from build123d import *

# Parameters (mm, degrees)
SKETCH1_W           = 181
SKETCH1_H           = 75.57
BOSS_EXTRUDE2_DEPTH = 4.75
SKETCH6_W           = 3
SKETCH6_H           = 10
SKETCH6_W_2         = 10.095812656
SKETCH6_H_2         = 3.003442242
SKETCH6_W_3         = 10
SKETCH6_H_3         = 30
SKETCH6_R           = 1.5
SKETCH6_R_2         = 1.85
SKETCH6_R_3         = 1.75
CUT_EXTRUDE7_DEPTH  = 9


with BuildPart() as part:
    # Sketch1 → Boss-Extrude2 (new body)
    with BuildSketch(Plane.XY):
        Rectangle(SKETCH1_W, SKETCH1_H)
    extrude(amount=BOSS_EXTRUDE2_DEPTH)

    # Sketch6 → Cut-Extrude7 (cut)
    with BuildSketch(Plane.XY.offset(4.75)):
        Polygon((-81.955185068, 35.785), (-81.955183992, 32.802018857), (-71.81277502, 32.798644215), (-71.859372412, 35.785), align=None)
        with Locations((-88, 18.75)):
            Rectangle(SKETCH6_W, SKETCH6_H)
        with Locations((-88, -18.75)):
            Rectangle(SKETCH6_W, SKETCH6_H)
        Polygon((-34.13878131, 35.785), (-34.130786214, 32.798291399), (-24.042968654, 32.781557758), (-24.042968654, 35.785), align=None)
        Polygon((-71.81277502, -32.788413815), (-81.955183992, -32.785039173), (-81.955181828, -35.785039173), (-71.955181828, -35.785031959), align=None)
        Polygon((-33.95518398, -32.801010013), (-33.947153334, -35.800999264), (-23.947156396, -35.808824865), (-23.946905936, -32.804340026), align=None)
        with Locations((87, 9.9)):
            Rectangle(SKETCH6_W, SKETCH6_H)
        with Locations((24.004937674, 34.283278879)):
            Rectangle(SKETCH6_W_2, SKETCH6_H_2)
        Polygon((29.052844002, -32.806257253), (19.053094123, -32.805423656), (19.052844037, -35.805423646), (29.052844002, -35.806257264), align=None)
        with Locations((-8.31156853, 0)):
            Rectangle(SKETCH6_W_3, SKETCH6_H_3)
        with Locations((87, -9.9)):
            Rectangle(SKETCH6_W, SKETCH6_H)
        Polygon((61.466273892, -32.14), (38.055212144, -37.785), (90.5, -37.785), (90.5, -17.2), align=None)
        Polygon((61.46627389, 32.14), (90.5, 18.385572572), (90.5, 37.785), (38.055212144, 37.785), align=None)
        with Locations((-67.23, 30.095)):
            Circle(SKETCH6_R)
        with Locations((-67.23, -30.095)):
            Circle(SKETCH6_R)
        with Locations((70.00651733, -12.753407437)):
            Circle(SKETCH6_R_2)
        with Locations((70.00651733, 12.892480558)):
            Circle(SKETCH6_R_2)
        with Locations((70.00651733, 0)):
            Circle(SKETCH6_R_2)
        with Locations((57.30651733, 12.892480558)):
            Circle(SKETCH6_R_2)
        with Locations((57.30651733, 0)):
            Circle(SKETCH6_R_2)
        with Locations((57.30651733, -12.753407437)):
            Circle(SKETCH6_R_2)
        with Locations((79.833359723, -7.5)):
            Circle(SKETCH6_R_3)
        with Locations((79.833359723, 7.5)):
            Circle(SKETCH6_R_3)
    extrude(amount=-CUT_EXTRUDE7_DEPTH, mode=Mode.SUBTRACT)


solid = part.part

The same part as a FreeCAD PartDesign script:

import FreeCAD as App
import Part
import Sketcher
from FreeCAD import Vector

doc = App.newDocument("Part")
body = doc.addObject("PartDesign::Body", "Body")

# Sketch on XY plane
sketch1 = doc.addObject("Sketcher::SketchObject", "Sketch")
body.addObject(sketch1)
sketch1.AttachmentSupport = (doc.XY_Plane, [""])
sketch1.MapMode = "FlatFace"
sketch1.addGeometry([
    Part.LineSegment(Vector(-90, 38, 0), Vector(-90, -38, 0)),
    Part.LineSegment(Vector(-90, -38, 0), Vector(90, -38, 0)),
    Part.LineSegment(Vector(90, -38, 0), Vector(90, 38, 0)),
    Part.LineSegment(Vector(90, 38, 0), Vector(-90, 38, 0)),
], False)
sketch1.addConstraint([
    Sketcher.Constraint("Coincident", 0, 2, 1, 1),
    Sketcher.Constraint("Coincident", 1, 2, 2, 1),
    Sketcher.Constraint("Coincident", 2, 2, 3, 1),
    Sketcher.Constraint("Coincident", 3, 2, 0, 1),
    Sketcher.Constraint("Vertical", 0),
    Sketcher.Constraint("Horizontal", 1),
    Sketcher.Constraint("Vertical", 2),
    Sketcher.Constraint("Horizontal", 3),
    Sketcher.Constraint("Symmetric", 0, 2, 2, 2, -1, 1),
    Sketcher.Constraint("DistanceX", 1, 1, 1, 2, 181.0),
    Sketcher.Constraint("DistanceY", 0, 2, 0, 1, 75.57),
])
pad1 = doc.addObject("PartDesign::Pad", "Pad")
body.addObject(pad1)
pad1.Profile = sketch1
pad1.Length = 4.75

# Sketch on XY plane
sketch2 = doc.addObject("Sketcher::SketchObject", "Sketch001")
body.addObject(sketch2)
sketch2.AttachmentSupport = (doc.XY_Plane, [""])
sketch2.MapMode = "FlatFace"
sketch2.AttachmentOffset = App.Placement(Vector(0, 0, 4.75), App.Rotation())
sketch2.addGeometry([
    Part.LineSegment(Vector(-82, 35.8, 0), Vector(-82, 32.8, 0)),  # 0
    Part.LineSegment(Vector(-82, 32.8, 0), Vector(-71.8, 32.8, 0)),  # 1
    Part.LineSegment(Vector(-71.8, 32.8, 0), Vector(-71.9, 35.8, 0)),  # 2
    Part.LineSegment(Vector(-71.9, 35.8, 0), Vector(-82, 35.8, 0)),  # 3
    Part.LineSegment(Vector(-89.5, 23.8, 0), Vector(-89.5, 13.8, 0)),  # 4
    Part.LineSegment(Vector(-89.5, 13.8, 0), Vector(-86.5, 13.8, 0)),  # 5
    Part.LineSegment(Vector(-86.5, 13.8, 0), Vector(-86.5, 23.8, 0)),  # 6
    Part.LineSegment(Vector(-86.5, 23.8, 0), Vector(-89.5, 23.8, 0)),  # 7
    Part.LineSegment(Vector(-89.5, -13.8, 0), Vector(-89.5, -23.8, 0)),  # 8
    Part.LineSegment(Vector(-89.5, -23.8, 0), Vector(-86.5, -23.8, 0)),  # 9
    Part.LineSegment(Vector(-86.5, -23.8, 0), Vector(-86.5, -13.8, 0)),  # 10
    Part.LineSegment(Vector(-86.5, -13.8, 0), Vector(-89.5, -13.8, 0)),  # 11
    Part.LineSegment(Vector(-34.1, 35.8, 0), Vector(-34.1, 32.8, 0)),  # 12
    Part.LineSegment(Vector(-34.1, 32.8, 0), Vector(-24, 32.8, 0)),  # 13
    Part.LineSegment(Vector(-24, 32.8, 0), Vector(-24, 35.8, 0)),  # 14
    Part.LineSegment(Vector(-24, 35.8, 0), Vector(-34.1, 35.8, 0)),  # 15
    Part.LineSegment(Vector(-71.8, -32.8, 0), Vector(-82, -32.8, 0)),  # 16
    Part.LineSegment(Vector(-82, -32.8, 0), Vector(-82, -35.8, 0)),  # 17
    Part.LineSegment(Vector(-82, -35.8, 0), Vector(-72, -35.8, 0)),  # 18
    Part.LineSegment(Vector(-72, -35.8, 0), Vector(-71.8, -32.8, 0)),  # 19
    Part.LineSegment(Vector(-34, -32.8, 0), Vector(-33.9, -35.8, 0)),  # 20
    Part.LineSegment(Vector(-33.9, -35.8, 0), Vector(-23.9, -35.8, 0)),  # 21
    Part.LineSegment(Vector(-23.9, -35.8, 0), Vector(-23.9, -32.8, 0)),  # 22
    Part.LineSegment(Vector(-23.9, -32.8, 0), Vector(-34, -32.8, 0)),  # 23
    Part.LineSegment(Vector(85.5, 14.9, 0), Vector(85.5, 4.9, 0)),  # 24
    Part.LineSegment(Vector(85.5, 4.9, 0), Vector(88.5, 4.9, 0)),  # 25
    Part.LineSegment(Vector(88.5, 4.9, 0), Vector(88.5, 14.9, 0)),  # 26
    Part.LineSegment(Vector(88.5, 14.9, 0), Vector(85.5, 14.9, 0)),  # 27
    Part.LineSegment(Vector(19, 35.8, 0), Vector(19, 32.8, 0)),  # 28
    Part.LineSegment(Vector(19, 32.8, 0), Vector(29.1, 32.8, 0)),  # 29
    Part.LineSegment(Vector(29.1, 32.8, 0), Vector(29.1, 35.8, 0)),  # 30
    Part.LineSegment(Vector(29.1, 35.8, 0), Vector(19, 35.8, 0)),  # 31
    Part.LineSegment(Vector(29.1, -32.8, 0), Vector(19.1, -32.8, 0)),  # 32
    Part.LineSegment(Vector(19.1, -32.8, 0), Vector(19.1, -35.8, 0)),  # 33
    Part.LineSegment(Vector(19.1, -35.8, 0), Vector(29.1, -35.8, 0)),  # 34
    Part.LineSegment(Vector(29.1, -35.8, 0), Vector(29.1, -32.8, 0)),  # 35
    Part.LineSegment(Vector(-13.3, 15, 0), Vector(-13.3, -15, 0)),  # 36
    Part.LineSegment(Vector(-13.3, -15, 0), Vector(-3.3, -15, 0)),  # 37
    Part.LineSegment(Vector(-3.3, -15, 0), Vector(-3.3, 15, 0)),  # 38
    Part.LineSegment(Vector(-3.3, 15, 0), Vector(-13.3, 15, 0)),  # 39
    Part.LineSegment(Vector(85.5, -4.9, 0), Vector(85.5, -14.9, 0)),  # 40
    Part.LineSegment(Vector(85.5, -14.9, 0), Vector(88.5, -14.9, 0)),  # 41
    Part.LineSegment(Vector(88.5, -14.9, 0), Vector(88.5, -4.9, 0)),  # 42
    Part.LineSegment(Vector(88.5, -4.9, 0), Vector(85.5, -4.9, 0)),  # 43
    Part.LineSegment(Vector(61.5, -32.1, 0), Vector(38.1, -37.8, 0)),  # 44
    Part.LineSegment(Vector(38.1, -37.8, 0), Vector(90.5, -37.8, 0)),  # 45
    Part.LineSegment(Vector(90.5, -37.8, 0), Vector(90.5, -17.2, 0)),  # 46
    Part.LineSegment(Vector(90.5, -17.2, 0), Vector(61.5, -32.1, 0)),  # 47
    Part.LineSegment(Vector(61.5, 32.1, 0), Vector(90.5, 18.4, 0)),  # 48
    Part.LineSegment(Vector(90.5, 18.4, 0), Vector(90.5, 37.8, 0)),  # 49
    Part.LineSegment(Vector(90.5, 37.8, 0), Vector(38.1, 37.8, 0)),  # 50
    Part.LineSegment(Vector(38.1, 37.8, 0), Vector(61.5, 32.1, 0)),  # 51
    Part.Circle(Vector(-67.2, 30.1, 0), Vector(0, 0, 1), 1.5),  # 52
    Part.Circle(Vector(-67.2, -30.1, 0), Vector(0, 0, 1), 1.5),  # 53
    Part.Circle(Vector(70, -12.8, 0), Vector(0, 0, 1), 1.9),  # 54
    Part.Circle(Vector(70, 12.9, 0), Vector(0, 0, 1), 1.9),  # 55
    Part.Circle(Vector(70, 0, 0), Vector(0, 0, 1), 1.9),  # 56
    Part.Circle(Vector(57.3, 12.9, 0), Vector(0, 0, 1), 1.9),  # 57
    Part.Circle(Vector(57.3, 0, 0), Vector(0, 0, 1), 1.9),  # 58
    Part.Circle(Vector(57.3, -12.8, 0), Vector(0, 0, 1), 1.9),  # 59
    Part.Circle(Vector(79.8, -7.5, 0), Vector(0, 0, 1), 1.8),  # 60
    Part.Circle(Vector(79.8, 7.5, 0), Vector(0, 0, 1), 1.8),  # 61
], False)
sketch2.addConstraint([
    Sketcher.Constraint("Coincident", 0, 2, 1, 1),
    Sketcher.Constraint("Coincident", 1, 2, 2, 1),
    Sketcher.Constraint("Coincident", 2, 2, 3, 1),
    Sketcher.Constraint("Coincident", 3, 2, 0, 1),
    Sketcher.Constraint("Coincident", 4, 2, 5, 1),
    Sketcher.Constraint("Coincident", 5, 2, 6, 1),
    Sketcher.Constraint("Coincident", 6, 2, 7, 1),
    Sketcher.Constraint("Coincident", 7, 2, 4, 1),
    Sketcher.Constraint("Coincident", 8, 2, 9, 1),
    Sketcher.Constraint("Coincident", 9, 2, 10, 1),
    Sketcher.Constraint("Coincident", 10, 2, 11, 1),
    Sketcher.Constraint("Coincident", 11, 2, 8, 1),
    Sketcher.Constraint("Coincident", 12, 2, 13, 1),
    Sketcher.Constraint("Coincident", 13, 2, 14, 1),
    Sketcher.Constraint("Coincident", 14, 2, 15, 1),
    Sketcher.Constraint("Coincident", 15, 2, 12, 1),
    Sketcher.Constraint("Coincident", 16, 2, 17, 1),
    Sketcher.Constraint("Coincident", 17, 2, 18, 1),
    Sketcher.Constraint("Coincident", 18, 2, 19, 1),
    Sketcher.Constraint("Coincident", 19, 2, 16, 1),
    Sketcher.Constraint("Coincident", 20, 2, 21, 1),
    Sketcher.Constraint("Coincident", 21, 2, 22, 1),
    Sketcher.Constraint("Coincident", 22, 2, 23, 1),
    Sketcher.Constraint("Coincident", 23, 2, 20, 1),
    Sketcher.Constraint("Coincident", 24, 2, 25, 1),
    Sketcher.Constraint("Coincident", 25, 2, 26, 1),
    Sketcher.Constraint("Coincident", 26, 2, 27, 1),
    Sketcher.Constraint("Coincident", 27, 2, 24, 1),
    Sketcher.Constraint("Coincident", 28, 2, 29, 1),
    Sketcher.Constraint("Coincident", 29, 2, 30, 1),
    Sketcher.Constraint("Coincident", 30, 2, 31, 1),
    Sketcher.Constraint("Coincident", 31, 2, 28, 1),
    Sketcher.Constraint("Coincident", 32, 2, 33, 1),
    Sketcher.Constraint("Coincident", 33, 2, 34, 1),
    Sketcher.Constraint("Coincident", 34, 2, 35, 1),
    Sketcher.Constraint("Coincident", 35, 2, 32, 1),
    Sketcher.Constraint("Coincident", 36, 2, 37, 1),
    Sketcher.Constraint("Coincident", 37, 2, 38, 1),
    Sketcher.Constraint("Coincident", 38, 2, 39, 1),
    Sketcher.Constraint("Coincident", 39, 2, 36, 1),
    Sketcher.Constraint("Coincident", 40, 2, 41, 1),
    Sketcher.Constraint("Coincident", 41, 2, 42, 1),
    Sketcher.Constraint("Coincident", 42, 2, 43, 1),
    Sketcher.Constraint("Coincident", 43, 2, 40, 1),
    Sketcher.Constraint("Coincident", 44, 2, 45, 1),
    Sketcher.Constraint("Coincident", 45, 2, 46, 1),
    Sketcher.Constraint("Coincident", 46, 2, 47, 1),
    Sketcher.Constraint("Coincident", 47, 2, 44, 1),
    Sketcher.Constraint("Coincident", 48, 2, 49, 1),
    Sketcher.Constraint("Coincident", 49, 2, 50, 1),
    Sketcher.Constraint("Coincident", 50, 2, 51, 1),
    Sketcher.Constraint("Coincident", 51, 2, 48, 1),
    Sketcher.Constraint("Vertical", 0),
    Sketcher.Constraint("Horizontal", 3),
    Sketcher.Constraint("Vertical", 4),
    Sketcher.Constraint("Horizontal", 5),
    Sketcher.Constraint("Vertical", 6),
    Sketcher.Constraint("Horizontal", 7),
    Sketcher.Constraint("Vertical", 8),
    Sketcher.Constraint("Horizontal", 9),
    Sketcher.Constraint("Vertical", 10),
    Sketcher.Constraint("Horizontal", 11),
    Sketcher.Constraint("Vertical", 14),
    Sketcher.Constraint("Horizontal", 15),
    Sketcher.Constraint("Vertical", 24),
    Sketcher.Constraint("Horizontal", 25),
    Sketcher.Constraint("Vertical", 26),
    Sketcher.Constraint("Horizontal", 27),
    Sketcher.Constraint("Vertical", 28),
    Sketcher.Constraint("Horizontal", 29),
    Sketcher.Constraint("Vertical", 30),
    Sketcher.Constraint("Horizontal", 31),
    Sketcher.Constraint("Vertical", 35),
    Sketcher.Constraint("Vertical", 36),
    Sketcher.Constraint("Horizontal", 37),
    Sketcher.Constraint("Vertical", 38),
    Sketcher.Constraint("Horizontal", 39),
    Sketcher.Constraint("Vertical", 40),
    Sketcher.Constraint("Horizontal", 41),
    Sketcher.Constraint("Vertical", 42),
    Sketcher.Constraint("Horizontal", 43),
    Sketcher.Constraint("Horizontal", 45),
    Sketcher.Constraint("Vertical", 46),
    Sketcher.Constraint("Vertical", 49),
    Sketcher.Constraint("Horizontal", 50),
    Sketcher.Constraint("Equal", 52, 53),
    Sketcher.Constraint("Equal", 54, 55),
    Sketcher.Constraint("Equal", 55, 56),
    Sketcher.Constraint("Equal", 56, 57),
    Sketcher.Constraint("Equal", 57, 58),
    Sketcher.Constraint("Equal", 58, 59),
    Sketcher.Constraint("Equal", 60, 61),
    Sketcher.Constraint("Symmetric", 52, 3, 53, 3, -1),
    Sketcher.Constraint("Symmetric", 60, 3, 61, 3, -1),
    Sketcher.Constraint("Symmetric", 7, 2, 8, 2, -1),
    Sketcher.Constraint("Symmetric", 5, 2, 10, 2, -1),
    Sketcher.Constraint("Symmetric", 27, 2, 40, 2, -1),
    Sketcher.Constraint("Symmetric", 25, 2, 42, 2, -1),
    Sketcher.Constraint("Symmetric", 45, 2, 49, 2, -1),
    Sketcher.Constraint("Symmetric", 47, 2, 51, 2, -1),
    Sketcher.Constraint("PointOnObject", 56, 3, -1),
    Sketcher.Constraint("PointOnObject", 58, 3, -1),
    Sketcher.Constraint("Parallel", 1, 16),
    Sketcher.Constraint("Perpendicular", 17, 18),
    Sketcher.Constraint("Parallel", 12, 20),
    Sketcher.Constraint("Parallel", 16, 23),
    Sketcher.Constraint("Perpendicular", 22, 32),
    Sketcher.Constraint("Perpendicular", 32, 33),
    Sketcher.Constraint("Perpendicular", 33, 34),
    Sketcher.Constraint("Horizontal", 55, 3, 57, 3),
    Sketcher.Constraint("Horizontal", 54, 3, 59, 3),
    Sketcher.Constraint("Horizontal", 3, 2, 14, 2),
    Sketcher.Constraint("Horizontal", 13, 2, 28, 2),
    Sketcher.Constraint("Horizontal", 15, 2, 30, 2),
    Sketcher.Constraint("Vertical", 54, 3, 55, 3),
    Sketcher.Constraint("Vertical", 55, 3, 56, 3),
    Sketcher.Constraint("Vertical", 57, 3, 58, 3),
    Sketcher.Constraint("Vertical", 58, 3, 59, 3),
    Sketcher.Constraint("Vertical", 3, 2, 16, 2),
    Sketcher.Constraint("Vertical", 1, 2, 19, 2),
    Sketcher.Constraint("Vertical", 30, 2, 34, 2),
    Sketcher.Constraint("Vertical", 44, 2, 50, 2),
    Sketcher.Constraint("Equal", 3, 15),
    Sketcher.Constraint("Equal", 11, 25),
    Sketcher.Constraint("Equal", 15, 29),
    Sketcher.Constraint("Equal", 39, 4),
    Sketcher.Constraint("Equal", 10, 24),
    Sketcher.Constraint("Equal", 43, 35),
    Sketcher.Constraint("Equal", 2, 12),
    Sketcher.Constraint("Equal", 17, 19),
    Sketcher.Constraint("Equal", 19, 20),
    Sketcher.Constraint("Equal", 18, 21),
    Sketcher.Constraint("Equal", 20, 33),
    Sketcher.Constraint("Equal", 21, 34),
    Sketcher.Constraint("Diameter", 52, 3.0),
    Sketcher.Constraint("Diameter", 54, 3.7),
    Sketcher.Constraint("Diameter", 60, 3.5),
    Sketcher.Constraint("DistanceX", 5, 1, 5, 2, 3.0),
    Sketcher.Constraint("DistanceX", 37, 1, 37, 2, 10.0),
    Sketcher.Constraint("DistanceY", 36, 2, 36, 1, 30.0),
    Sketcher.Constraint("Distance", 18, 10.0),
    Sketcher.Constraint("DistanceY", 36, 2, -1, 1, 15.0),
    Sketcher.Constraint("DistanceY", 60, 3, -1, 1, 7.5),
    Sketcher.Constraint("DistanceX", 4, 2, -1, 1, 89.5),
    Sketcher.Constraint("DistanceX", -1, 1, 24, 2, 85.5),
    Sketcher.Constraint("DistanceY", -1, 1, 24, 2, 4.9),
    Sketcher.Constraint("DistanceX", -1, 1, 45, 2, 90.5),
    Sketcher.Constraint("DistanceY", 46, 2, -1, 1, 17.2),
    Sketcher.Constraint("DistanceY", 46, 1, 46, 2, 20.585),
    Sketcher.Constraint("DistanceX", 52, 3, -1, 1, 67.23),
    Sketcher.Constraint("DistanceY", -1, 1, 4, 2, 13.75),
    Sketcher.Constraint("DistanceY", 47, 2, -1, 1, 32.14),
    Sketcher.Constraint("DistanceY", -1, 1, 52, 3, 30.095),
    Sketcher.Constraint("DistanceY", -1, 1, 2, 2, 35.785),
    Sketcher.Constraint("DistanceY", 20, 2, -1, 1, 35.800999),
    Sketcher.Constraint("DistanceY", 0, 2, 0, 1, 2.982981),
    Sketcher.Constraint("Distance", 1, 10.14241),
    Sketcher.Constraint("Distance", 2, 2.986719),
    Sketcher.Constraint("Distance", 13, 10.087831),
    Sketcher.Constraint("Distance", 23, 10.008279),
    Sketcher.Constraint("Distance", 32, 9.99975),
    Sketcher.Constraint("Distance", 47, 32.652119),
    Sketcher.Constraint("Distance", 48, 32.126959),
    Sketcher.Constraint("DistanceX", 45, 1, 45, 2, 52.444788),
    Sketcher.Constraint("DistanceY", 14, 1, 14, 2, 3.003442),
    Sketcher.Constraint("DistanceY", -1, 1, 55, 3, 12.892481),
    Sketcher.Constraint("DistanceX", -1, 1, 60, 3, 79.83336),
    Sketcher.Constraint("DistanceX", 13, 2, -1, 1, 24.042969),
    Sketcher.Constraint("DistanceY", 16, 2, -1, 1, 32.785039),
    Sketcher.Constraint("DistanceX", 17, 2, -1, 1, 81.955182),
    Sketcher.Constraint("DistanceX", -1, 1, 28, 2, 18.957031),
    Sketcher.Constraint("DistanceX", 36, 2, -1, 1, 13.311569),
    Sketcher.Constraint("Distance", 22, 3.004485),
    Sketcher.Constraint("DistanceX", -1, 1, 54, 3, 70.006517),
    Sketcher.Constraint("DistanceY", 54, 3, -1, 1, 12.753407),
    Sketcher.Constraint("DistanceX", -1, 1, 57, 3, 57.306517),
    Sketcher.Constraint("DistanceX", 20, 2, -1, 1, 33.947153),
    Sketcher.Constraint("DistanceY", 32, 2, -1, 1, 32.805424),
])
pocket1 = doc.addObject("PartDesign::Pocket", "Pocket")
body.addObject(pocket1)
pocket1.Profile = sketch2
pocket1.Length = 9

doc.recompute()
